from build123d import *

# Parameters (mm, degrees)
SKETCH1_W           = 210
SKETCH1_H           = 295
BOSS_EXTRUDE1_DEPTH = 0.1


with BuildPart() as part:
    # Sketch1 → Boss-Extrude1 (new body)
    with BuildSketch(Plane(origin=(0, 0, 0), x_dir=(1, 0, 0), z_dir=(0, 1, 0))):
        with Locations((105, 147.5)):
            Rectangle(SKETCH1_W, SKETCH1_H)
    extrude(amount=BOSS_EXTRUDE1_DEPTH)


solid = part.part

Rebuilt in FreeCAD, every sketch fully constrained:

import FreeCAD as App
import Part
import Sketcher

V = App.Vector
Q = App.Units.Quantity


def add_polygon(sketch, points):
    """Adds a closed chain of lines whose ends are joined by coincident constraints."""
    first, n = sketch.GeometryCount, len(points)
    for a, b in zip(points, points[1:] + points[:1]):
        sketch.addGeometry(Part.LineSegment(App.Vector(*a, 0), App.Vector(*b, 0)), False)
    for i in range(n):
        sketch.addConstraint(Sketcher.Constraint("Coincident", first + i, 2, first + (i + 1) % n, 1))

doc = App.newDocument("Part")
body = doc.addObject("PartDesign::Body", "Body")

sketch1 = body.newObject("Sketcher::SketchObject", "Sketch")
sketch1.AttachmentSupport = (doc.getObject("XZ_Plane"), [""])
sketch1.MapMode = "FlatFace"
add_polygon(sketch1, [(0, -295), (0, 0), (210, 0), (210, -295)])
sketch1.addConstraint([
    Sketcher.Constraint("Vertical", 0),
    Sketcher.Constraint("Horizontal", 1),
    Sketcher.Constraint("Vertical", 2),
    Sketcher.Constraint("Horizontal", 3),
    Sketcher.Constraint("Coincident", 0, 2, -1, 1),
    Sketcher.Constraint("DistanceX", 1, 1, 1, 2, Q("210 mm")),
    Sketcher.Constraint("DistanceY", 0, 1, 0, 2, Q("295 mm")),
])
pad1 = body.newObject("PartDesign::Pad", "Pad")
pad1.Profile = sketch1
pad1.Length = 0.1
pad1.Reversed = True

doc.recompute()
